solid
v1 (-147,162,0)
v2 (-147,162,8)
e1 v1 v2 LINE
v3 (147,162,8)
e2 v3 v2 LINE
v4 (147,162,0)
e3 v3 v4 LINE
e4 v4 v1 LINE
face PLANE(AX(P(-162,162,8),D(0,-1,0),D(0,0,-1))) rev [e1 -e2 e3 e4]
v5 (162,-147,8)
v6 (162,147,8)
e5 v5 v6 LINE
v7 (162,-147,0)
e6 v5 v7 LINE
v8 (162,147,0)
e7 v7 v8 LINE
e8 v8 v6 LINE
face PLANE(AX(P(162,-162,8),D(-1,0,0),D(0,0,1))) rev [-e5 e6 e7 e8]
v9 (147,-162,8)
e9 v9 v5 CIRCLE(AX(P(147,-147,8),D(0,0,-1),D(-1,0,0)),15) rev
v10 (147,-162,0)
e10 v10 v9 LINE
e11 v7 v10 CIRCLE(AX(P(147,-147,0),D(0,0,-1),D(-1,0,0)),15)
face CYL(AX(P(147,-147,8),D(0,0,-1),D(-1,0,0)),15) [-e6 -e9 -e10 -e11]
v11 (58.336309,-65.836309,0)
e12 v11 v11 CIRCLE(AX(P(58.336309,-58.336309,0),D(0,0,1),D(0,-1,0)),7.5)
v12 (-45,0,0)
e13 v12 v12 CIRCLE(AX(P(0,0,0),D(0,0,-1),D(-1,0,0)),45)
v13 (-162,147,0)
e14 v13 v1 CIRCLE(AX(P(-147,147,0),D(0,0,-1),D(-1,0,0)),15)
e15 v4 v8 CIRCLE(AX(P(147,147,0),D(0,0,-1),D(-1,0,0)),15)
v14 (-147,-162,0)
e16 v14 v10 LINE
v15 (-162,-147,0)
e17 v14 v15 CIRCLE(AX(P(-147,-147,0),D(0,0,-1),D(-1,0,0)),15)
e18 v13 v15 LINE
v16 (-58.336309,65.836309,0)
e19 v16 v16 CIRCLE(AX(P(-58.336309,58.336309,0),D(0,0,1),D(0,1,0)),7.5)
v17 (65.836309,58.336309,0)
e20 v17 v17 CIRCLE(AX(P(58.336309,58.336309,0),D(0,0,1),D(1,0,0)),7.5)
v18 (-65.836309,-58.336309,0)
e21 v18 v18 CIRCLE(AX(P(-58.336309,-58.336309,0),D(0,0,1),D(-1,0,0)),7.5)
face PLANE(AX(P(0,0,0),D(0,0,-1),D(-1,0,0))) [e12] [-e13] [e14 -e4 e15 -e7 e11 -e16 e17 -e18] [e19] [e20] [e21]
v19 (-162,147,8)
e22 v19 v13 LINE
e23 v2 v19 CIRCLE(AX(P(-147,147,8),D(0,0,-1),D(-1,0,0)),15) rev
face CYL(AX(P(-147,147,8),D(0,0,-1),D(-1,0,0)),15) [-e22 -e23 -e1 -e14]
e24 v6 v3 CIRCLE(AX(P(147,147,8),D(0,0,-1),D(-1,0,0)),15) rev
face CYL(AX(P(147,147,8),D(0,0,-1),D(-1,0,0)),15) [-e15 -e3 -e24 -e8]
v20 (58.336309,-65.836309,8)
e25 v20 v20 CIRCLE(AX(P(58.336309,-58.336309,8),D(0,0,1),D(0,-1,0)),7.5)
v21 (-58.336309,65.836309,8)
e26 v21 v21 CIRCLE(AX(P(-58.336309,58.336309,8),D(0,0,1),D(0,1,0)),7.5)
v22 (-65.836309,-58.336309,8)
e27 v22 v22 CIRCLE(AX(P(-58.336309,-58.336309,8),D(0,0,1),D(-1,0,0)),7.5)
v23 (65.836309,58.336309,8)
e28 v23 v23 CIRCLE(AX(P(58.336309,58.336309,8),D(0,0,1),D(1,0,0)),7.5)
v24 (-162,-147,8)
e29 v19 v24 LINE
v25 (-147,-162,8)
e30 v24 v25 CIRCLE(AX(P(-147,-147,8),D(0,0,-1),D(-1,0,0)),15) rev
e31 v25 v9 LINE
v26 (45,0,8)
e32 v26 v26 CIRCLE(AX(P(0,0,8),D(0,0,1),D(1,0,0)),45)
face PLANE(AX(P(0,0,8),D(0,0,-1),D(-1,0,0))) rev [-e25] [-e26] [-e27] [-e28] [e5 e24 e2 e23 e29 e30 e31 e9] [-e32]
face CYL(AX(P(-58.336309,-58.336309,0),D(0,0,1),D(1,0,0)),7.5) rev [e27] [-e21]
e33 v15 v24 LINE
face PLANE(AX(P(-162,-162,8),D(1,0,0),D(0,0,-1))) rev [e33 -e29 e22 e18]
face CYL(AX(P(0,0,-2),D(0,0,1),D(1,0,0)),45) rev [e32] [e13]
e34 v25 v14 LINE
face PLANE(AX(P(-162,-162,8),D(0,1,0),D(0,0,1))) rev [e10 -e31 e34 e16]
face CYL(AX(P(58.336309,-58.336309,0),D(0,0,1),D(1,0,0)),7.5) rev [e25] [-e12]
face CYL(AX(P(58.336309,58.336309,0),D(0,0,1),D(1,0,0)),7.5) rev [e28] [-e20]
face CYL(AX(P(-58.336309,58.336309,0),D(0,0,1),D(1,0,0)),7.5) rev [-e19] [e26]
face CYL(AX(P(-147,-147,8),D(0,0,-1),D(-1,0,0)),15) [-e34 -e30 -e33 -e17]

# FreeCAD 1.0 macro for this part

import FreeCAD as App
import Part
import Sketcher

V = App.Vector
Q = App.Units.Quantity


def edges_at(feature, points):
    """Names of the edges that pass closest to the given points."""
    edges = feature.Shape.Edges
    near = lambda p: min(range(len(edges)), key=lambda i: edges[i].distToShape(Part.Vertex(*p))[0])
    return sorted({f"Edge{near(p) + 1}" for p in points})

doc = App.newDocument("Part")
body = doc.addObject("PartDesign::Body", "Body")

# Sketch on XY plane
sketch1 = body.newObject("Sketcher::SketchObject", "Sketch")
sketch1.AttachmentSupport = (doc.getObject("XY_Plane"), [""])
sketch1.MapMode = "FlatFace"
sketch1.addGeometry(Part.LineSegment(V(-162, 162, 0), V(-162, -162, 0)), False)
sketch1.addGeometry(Part.LineSegment(V(-162, -162, 0), V(162, -162, 0)), False)
sketch1.addGeometry(Part.LineSegment(V(162, -162, 0), V(162, 162, 0)), False)
sketch1.addGeometry(Part.LineSegment(V(162, 162, 0), V(-162, 162, 0)), False)
sketch1.addConstraint(Sketcher.Constraint("Coincident", 0, 2, 1, 1))
sketch1.addConstraint(Sketcher.Constraint("Coincident", 1, 2, 2, 1))
sketch1.addConstraint(Sketcher.Constraint("Coincident", 2, 2, 3, 1))
sketch1.addConstraint(Sketcher.Constraint("Coincident", 3, 2, 0, 1))
sketch1.addConstraint(Sketcher.Constraint("Vertical", 0))
sketch1.addConstraint(Sketcher.Constraint("Horizontal", 1))
sketch1.addConstraint(Sketcher.Constraint("Vertical", 2))
sketch1.addConstraint(Sketcher.Constraint("Horizontal", 3))
sketch1.addConstraint(Sketcher.Constraint("Symmetric", 0, 2, 2, 2, -1, 1))
sketch1.addConstraint(Sketcher.Constraint("Equal", 3, 0))
sketch1.addConstraint(Sketcher.Constraint("DistanceX", 1, 1, 1, 2, Q("324 mm")))
pad1 = body.newObject("PartDesign::Pad", "Pad")
pad1.Profile = sketch1
pad1.Length = 8

# Sketch on XY plane
sketch2 = body.newObject("Sketcher::SketchObject", "Sketch001")
sketch2.AttachmentSupport = (doc.getObject("XY_Plane"), [""])
sketch2.MapMode = "FlatFace"
sketch2.AttachmentOffset = App.Placement(V(0, 0, 8), App.Rotation())
sketch2.addGeometry(Part.Circle(V(58.336309, 58.336309, 0), V(0, 0, 1), 7.5), False)
sketch2.addConstraint(Sketcher.Constraint("Diameter", 0, Q("15 mm")))
sketch2.addConstraint(Sketcher.Constraint("DistanceX", -1, 1, 0, 3, Q("58.336309 mm")))
sketch2.addConstraint(Sketcher.Constraint("DistanceY", -1, 1, 0, 3, Q("58.336309 mm")))
pocket1 = body.newObject("PartDesign::Pocket", "Pocket")
pocket1.Profile = sketch2
pocket1.Length = 8

# Sketch on XY plane
sketch3 = body.newObject("Sketcher::SketchObject", "Sketch002")
sketch3.AttachmentSupport = (doc.getObject("XY_Plane"), [""])
sketch3.MapMode = "FlatFace"
sketch3.AttachmentOffset = App.Placement(V(0, 0, 8), App.Rotation())
sketch3.addGeometry(Part.Circle(V(0, 0, 0), V(0, 0, 1), 45), False)
sketch3.addConstraint(Sketcher.Constraint("Coincident", 0, 3, -1, 1))
sketch3.addConstraint(Sketcher.Constraint("Diameter", 0, Q("90 mm")))
pocket2 = body.newObject("PartDesign::Pocket", "Pocket001")
pocket2.Profile = sketch3
pocket2.Length = 10
doc.recompute()

polarpattern = body.newObject("PartDesign::PolarPattern", "PolarPattern")
polarpattern.Originals = [pocket1]
polarpattern.Axis = (doc.getObject("Z_Axis"), [""])
polarpattern.Angle = 360
polarpattern.Occurrences = 4
body.Tip = polarpattern
doc.recompute()

fillet = body.newObject("PartDesign::Fillet", "Fillet")
fillet.Base = (polarpattern, edges_at(polarpattern, [
    (162, -162, 4),
    (-162, -162, 4),
    (-162, 162, 4),
    (162, 162, 4),
]))
fillet.Radius = 15

doc.recompute()
